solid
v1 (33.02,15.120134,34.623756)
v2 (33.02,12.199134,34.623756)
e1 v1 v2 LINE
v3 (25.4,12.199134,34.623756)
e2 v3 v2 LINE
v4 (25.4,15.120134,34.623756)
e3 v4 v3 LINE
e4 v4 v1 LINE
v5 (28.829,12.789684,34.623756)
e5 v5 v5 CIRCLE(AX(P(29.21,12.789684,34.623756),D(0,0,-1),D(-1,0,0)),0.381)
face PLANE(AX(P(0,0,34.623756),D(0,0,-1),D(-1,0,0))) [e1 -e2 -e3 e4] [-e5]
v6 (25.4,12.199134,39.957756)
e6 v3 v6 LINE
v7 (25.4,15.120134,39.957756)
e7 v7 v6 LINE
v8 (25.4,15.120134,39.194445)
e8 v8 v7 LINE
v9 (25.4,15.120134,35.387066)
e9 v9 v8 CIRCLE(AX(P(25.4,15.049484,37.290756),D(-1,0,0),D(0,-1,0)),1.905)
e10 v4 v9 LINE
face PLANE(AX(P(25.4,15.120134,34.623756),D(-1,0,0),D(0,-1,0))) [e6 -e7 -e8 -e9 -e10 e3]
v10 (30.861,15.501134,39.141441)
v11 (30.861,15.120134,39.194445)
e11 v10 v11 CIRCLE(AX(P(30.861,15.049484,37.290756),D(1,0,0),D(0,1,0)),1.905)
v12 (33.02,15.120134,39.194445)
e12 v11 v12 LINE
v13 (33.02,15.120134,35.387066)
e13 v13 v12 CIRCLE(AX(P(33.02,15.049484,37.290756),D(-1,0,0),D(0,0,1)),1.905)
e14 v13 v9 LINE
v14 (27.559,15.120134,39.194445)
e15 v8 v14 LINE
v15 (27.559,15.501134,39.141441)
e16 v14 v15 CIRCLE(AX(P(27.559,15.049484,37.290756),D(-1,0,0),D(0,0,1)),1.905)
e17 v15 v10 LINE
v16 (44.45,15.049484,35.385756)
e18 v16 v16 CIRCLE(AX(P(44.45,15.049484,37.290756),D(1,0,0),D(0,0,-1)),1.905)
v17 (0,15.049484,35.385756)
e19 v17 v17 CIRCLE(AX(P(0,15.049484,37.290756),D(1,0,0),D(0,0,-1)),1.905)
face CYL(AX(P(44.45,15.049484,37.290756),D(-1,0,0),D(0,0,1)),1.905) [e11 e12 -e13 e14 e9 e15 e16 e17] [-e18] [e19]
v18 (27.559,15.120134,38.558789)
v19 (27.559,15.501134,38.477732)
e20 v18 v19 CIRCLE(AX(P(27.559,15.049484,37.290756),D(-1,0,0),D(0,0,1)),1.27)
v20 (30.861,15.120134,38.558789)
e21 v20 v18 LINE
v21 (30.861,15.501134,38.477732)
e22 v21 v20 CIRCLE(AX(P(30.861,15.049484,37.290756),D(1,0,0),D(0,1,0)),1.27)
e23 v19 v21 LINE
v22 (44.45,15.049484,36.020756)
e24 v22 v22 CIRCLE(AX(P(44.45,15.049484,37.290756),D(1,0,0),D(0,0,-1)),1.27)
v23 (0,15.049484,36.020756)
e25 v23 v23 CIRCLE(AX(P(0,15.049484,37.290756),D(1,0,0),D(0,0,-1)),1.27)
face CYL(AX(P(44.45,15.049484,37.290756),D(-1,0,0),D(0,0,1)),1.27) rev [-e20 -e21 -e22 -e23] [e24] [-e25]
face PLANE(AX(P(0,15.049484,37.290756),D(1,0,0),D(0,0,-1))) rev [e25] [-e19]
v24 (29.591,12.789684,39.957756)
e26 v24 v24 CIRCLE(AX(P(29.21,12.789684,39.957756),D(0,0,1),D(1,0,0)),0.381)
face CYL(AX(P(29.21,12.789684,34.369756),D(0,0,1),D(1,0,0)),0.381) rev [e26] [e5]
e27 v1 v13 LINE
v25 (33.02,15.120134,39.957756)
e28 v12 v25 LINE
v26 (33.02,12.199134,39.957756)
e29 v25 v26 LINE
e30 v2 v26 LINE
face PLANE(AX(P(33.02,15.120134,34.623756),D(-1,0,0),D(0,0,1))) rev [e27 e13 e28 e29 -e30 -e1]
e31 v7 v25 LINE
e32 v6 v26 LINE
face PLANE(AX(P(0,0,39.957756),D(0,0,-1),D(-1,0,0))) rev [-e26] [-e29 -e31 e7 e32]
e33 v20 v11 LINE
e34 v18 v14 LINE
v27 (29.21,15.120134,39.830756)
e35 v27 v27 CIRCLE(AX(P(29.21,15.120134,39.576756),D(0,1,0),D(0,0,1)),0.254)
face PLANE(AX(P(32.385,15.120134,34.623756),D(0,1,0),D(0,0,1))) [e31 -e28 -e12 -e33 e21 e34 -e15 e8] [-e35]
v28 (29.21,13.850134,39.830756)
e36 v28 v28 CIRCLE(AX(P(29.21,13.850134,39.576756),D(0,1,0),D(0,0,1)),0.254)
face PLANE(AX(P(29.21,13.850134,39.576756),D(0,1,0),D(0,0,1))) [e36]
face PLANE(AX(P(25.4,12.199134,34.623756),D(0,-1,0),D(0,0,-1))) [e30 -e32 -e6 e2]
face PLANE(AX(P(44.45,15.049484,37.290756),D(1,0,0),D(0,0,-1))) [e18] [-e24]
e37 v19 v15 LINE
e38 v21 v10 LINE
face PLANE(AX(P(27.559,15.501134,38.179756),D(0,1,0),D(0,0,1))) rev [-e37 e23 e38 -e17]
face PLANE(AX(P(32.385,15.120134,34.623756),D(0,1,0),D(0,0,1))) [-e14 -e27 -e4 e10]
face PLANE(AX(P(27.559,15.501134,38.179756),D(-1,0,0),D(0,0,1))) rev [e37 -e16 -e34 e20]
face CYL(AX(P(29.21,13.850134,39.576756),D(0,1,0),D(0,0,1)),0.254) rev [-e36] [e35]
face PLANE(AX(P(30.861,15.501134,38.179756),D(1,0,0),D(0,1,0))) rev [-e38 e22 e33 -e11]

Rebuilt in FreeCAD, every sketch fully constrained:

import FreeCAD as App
import Part
import Sketcher

V = App.Vector
Q = App.Units.Quantity


def add_polygon(sketch, points):
    """Adds a closed chain of lines whose ends are joined by coincident constraints."""
    first, n = sketch.GeometryCount, len(points)
    for a, b in zip(points, points[1:] + points[:1]):
        sketch.addGeometry(Part.LineSegment(App.Vector(*a, 0), App.Vector(*b, 0)), False)
    for i in range(n):
        sketch.addConstraint(Sketcher.Constraint("Coincident", first + i, 2, first + (i + 1) % n, 1))

doc = App.newDocument("Part")
body = doc.addObject("PartDesign::Body", "Body")

# Sketch on YZ plane
sketch1 = body.newObject("Sketcher::SketchObject", "Sketch")
sketch1.AttachmentSupport = (doc.getObject("YZ_Plane"), [""])
sketch1.MapMode = "FlatFace"
sketch1.addGeometry(Part.Circle(V(15, 37.3, 0), V(0, 0, 1), 1.9), False)
sketch1.addGeometry(Part.Circle(V(15, 37.3, 0), V(0, 0, 1), 1.3), False)
sketch1.addConstraint(Sketcher.Constraint("Coincident", 1, 3, 0, 3))
sketch1.addConstraint(Sketcher.Constraint("Diameter", 1, Q("0.1 in")))
sketch1.addConstraint(Sketcher.Constraint("Diameter", 0, Q("0.15 in")))
sketch1.addConstraint(Sketcher.Constraint("DistanceX", -1, 1, 0, 3, 15.049484))
sketch1.addConstraint(Sketcher.Constraint("DistanceY", -1, 1, 0, 3, 37.290756))
pad1 = body.newObject("PartDesign::Pad", "Pad")
pad1.Profile = sketch1
pad1.Length = Q("1.75 in")

# Sketch on XY plane
sketch2 = body.newObject("Sketcher::SketchObject", "Sketch001")
sketch2.AttachmentSupport = (doc.getObject("XY_Plane"), [""])
sketch2.MapMode = "FlatFace"
sketch2.AttachmentOffset = App.Placement(V(0, 0, 39.195756), App.Rotation())
add_polygon(sketch2, [(33, 15.1), (25.4, 15.1), (25.4, 12.2), (33, 12.2)])  # lines 0-3
sketch2.addConstraint(Sketcher.Constraint("Horizontal", 0))
sketch2.addConstraint(Sketcher.Constraint("Vertical", 1))
sketch2.addConstraint(Sketcher.Constraint("Horizontal", 2))
sketch2.addConstraint(Sketcher.Constraint("Vertical", 3))
sketch2.addConstraint(Sketcher.Constraint("DistanceX", 0, 2, 0, 1, Q("0.3 in")))
sketch2.addConstraint(Sketcher.Constraint("DistanceX", -1, 1, 0, 2, Q("1 in")))
sketch2.addConstraint(Sketcher.Constraint("DistanceY", 1, 2, 1, 1, Q("0.115 in")))
sketch2.addConstraint(Sketcher.Constraint("DistanceY", -1, 1, 0, 2, 15.120134))
pad2 = body.newObject("PartDesign::Pad", "Pad001")
pad2.Profile = sketch2
pad2.Type = "TwoLengths"
pad2.Length = Q("0.03 in")
pad2.Length2 = Q("0.18 in")

# Sketch on YZ plane
sketch3 = body.newObject("Sketcher::SketchObject", "Sketch002")
sketch3.AttachmentSupport = (doc.getObject("YZ_Plane"), [""])
sketch3.MapMode = "FlatFace"
sketch3.addGeometry(Part.Circle(V(15, 37.3, 0), V(0, 0, 1), 1.3), False)
sketch3.addConstraint(Sketcher.Constraint("Diameter", 0, Q("0.1 in")))
sketch3.addConstraint(Sketcher.Constraint("DistanceX", -1, 1, 0, 3, 15.049484))
sketch3.addConstraint(Sketcher.Constraint("DistanceY", -1, 1, 0, 3, 37.290756))
pocket1 = body.newObject("PartDesign::Pocket", "Pocket")
pocket1.Profile = sketch3
pocket1.Length = Q("1.85 in")
pocket1.Reversed = True

# Sketch on XY plane
sketch4 = body.newObject("Sketcher::SketchObject", "Sketch003")
sketch4.AttachmentSupport = (doc.getObject("XY_Plane"), [""])
sketch4.MapMode = "FlatFace"
sketch4.AttachmentOffset = App.Placement(V(0, 0, 39.195756), App.Rotation())
add_polygon(sketch4, [(27.56, 15.5), (27.56, 15.12), (30.86, 15.12), (30.86, 15.5)])  # lines 0-3
sketch4.addConstraint(Sketcher.Constraint("Vertical", 0))
sketch4.addConstraint(Sketcher.Constraint("Horizontal", 1))
sketch4.addConstraint(Sketcher.Constraint("Vertical", 2))
sketch4.addConstraint(Sketcher.Constraint("Horizontal", 3))
sketch4.addConstraint(Sketcher.Constraint("DistanceX", 1, 1, 1, 2, Q("0.13 in")))
sketch4.addConstraint(Sketcher.Constraint("DistanceY", 0, 2, 0, 1, Q("0.015 in")))
sketch4.addConstraint(Sketcher.Constraint("DistanceX", -1, 1, 0, 2, Q("1.085 in")))
sketch4.addConstraint(Sketcher.Constraint("DistanceY", -1, 1, 0, 2, 15.120134))
pocket2 = body.newObject("PartDesign::Pocket", "Pocket001")
pocket2.Profile = sketch4
pocket2.Length = Q("0.04 in")

# Sketch on XY plane
sketch5 = body.newObject("Sketcher::SketchObject", "Sketch004")
sketch5.AttachmentSupport = (doc.getObject("XY_Plane"), [""])
sketch5.MapMode = "FlatFace"
sketch5.AttachmentOffset = App.Placement(V(0, 0, 39.957756), App.Rotation())
sketch5.addGeometry(Part.Circle(V(29.21, 12.79, 0), V(0, 0, 1), 0.38), False)
sketch5.addConstraint(Sketcher.Constraint("Diameter", 0, Q("0.03 in")))
sketch5.addConstraint(Sketcher.Constraint("DistanceX", -1, 1, 0, 3, Q("1.15 in")))
sketch5.addConstraint(Sketcher.Constraint("DistanceY", -1, 1, 0, 3, 12.789684))
pocket3 = body.newObject("PartDesign::Pocket", "Pocket002")
pocket3.Profile = sketch5
pocket3.Length = Q("0.22 in")

# Sketch on XZ plane
sketch6 = body.newObject("Sketcher::SketchObject", "Sketch005")
sketch6.AttachmentSupport = (doc.getObject("XZ_Plane"), [""])
sketch6.MapMode = "FlatFace"
sketch6.AttachmentOffset = App.Placement(V(0, 0, -15.120134), App.Rotation())
sketch6.addGeometry(Part.Circle(V(29.21, 39.58, 0), V(0, 0, 1), 0.25), False)
sketch6.addConstraint(Sketcher.Constraint("Diameter", 0, Q("0.02 in")))
sketch6.addConstraint(Sketcher.Constraint("DistanceX", -1, 1, 0, 3, Q("1.15 in")))
sketch6.addConstraint(Sketcher.Constraint("DistanceY", -1, 1, 0, 3, 39.576756))
pocket4 = body.newObject("PartDesign::Pocket", "Pocket003")
pocket4.Profile = sketch6
pocket4.Length = Q("0.05 in")
pocket4.Reversed = True

doc.recompute()
